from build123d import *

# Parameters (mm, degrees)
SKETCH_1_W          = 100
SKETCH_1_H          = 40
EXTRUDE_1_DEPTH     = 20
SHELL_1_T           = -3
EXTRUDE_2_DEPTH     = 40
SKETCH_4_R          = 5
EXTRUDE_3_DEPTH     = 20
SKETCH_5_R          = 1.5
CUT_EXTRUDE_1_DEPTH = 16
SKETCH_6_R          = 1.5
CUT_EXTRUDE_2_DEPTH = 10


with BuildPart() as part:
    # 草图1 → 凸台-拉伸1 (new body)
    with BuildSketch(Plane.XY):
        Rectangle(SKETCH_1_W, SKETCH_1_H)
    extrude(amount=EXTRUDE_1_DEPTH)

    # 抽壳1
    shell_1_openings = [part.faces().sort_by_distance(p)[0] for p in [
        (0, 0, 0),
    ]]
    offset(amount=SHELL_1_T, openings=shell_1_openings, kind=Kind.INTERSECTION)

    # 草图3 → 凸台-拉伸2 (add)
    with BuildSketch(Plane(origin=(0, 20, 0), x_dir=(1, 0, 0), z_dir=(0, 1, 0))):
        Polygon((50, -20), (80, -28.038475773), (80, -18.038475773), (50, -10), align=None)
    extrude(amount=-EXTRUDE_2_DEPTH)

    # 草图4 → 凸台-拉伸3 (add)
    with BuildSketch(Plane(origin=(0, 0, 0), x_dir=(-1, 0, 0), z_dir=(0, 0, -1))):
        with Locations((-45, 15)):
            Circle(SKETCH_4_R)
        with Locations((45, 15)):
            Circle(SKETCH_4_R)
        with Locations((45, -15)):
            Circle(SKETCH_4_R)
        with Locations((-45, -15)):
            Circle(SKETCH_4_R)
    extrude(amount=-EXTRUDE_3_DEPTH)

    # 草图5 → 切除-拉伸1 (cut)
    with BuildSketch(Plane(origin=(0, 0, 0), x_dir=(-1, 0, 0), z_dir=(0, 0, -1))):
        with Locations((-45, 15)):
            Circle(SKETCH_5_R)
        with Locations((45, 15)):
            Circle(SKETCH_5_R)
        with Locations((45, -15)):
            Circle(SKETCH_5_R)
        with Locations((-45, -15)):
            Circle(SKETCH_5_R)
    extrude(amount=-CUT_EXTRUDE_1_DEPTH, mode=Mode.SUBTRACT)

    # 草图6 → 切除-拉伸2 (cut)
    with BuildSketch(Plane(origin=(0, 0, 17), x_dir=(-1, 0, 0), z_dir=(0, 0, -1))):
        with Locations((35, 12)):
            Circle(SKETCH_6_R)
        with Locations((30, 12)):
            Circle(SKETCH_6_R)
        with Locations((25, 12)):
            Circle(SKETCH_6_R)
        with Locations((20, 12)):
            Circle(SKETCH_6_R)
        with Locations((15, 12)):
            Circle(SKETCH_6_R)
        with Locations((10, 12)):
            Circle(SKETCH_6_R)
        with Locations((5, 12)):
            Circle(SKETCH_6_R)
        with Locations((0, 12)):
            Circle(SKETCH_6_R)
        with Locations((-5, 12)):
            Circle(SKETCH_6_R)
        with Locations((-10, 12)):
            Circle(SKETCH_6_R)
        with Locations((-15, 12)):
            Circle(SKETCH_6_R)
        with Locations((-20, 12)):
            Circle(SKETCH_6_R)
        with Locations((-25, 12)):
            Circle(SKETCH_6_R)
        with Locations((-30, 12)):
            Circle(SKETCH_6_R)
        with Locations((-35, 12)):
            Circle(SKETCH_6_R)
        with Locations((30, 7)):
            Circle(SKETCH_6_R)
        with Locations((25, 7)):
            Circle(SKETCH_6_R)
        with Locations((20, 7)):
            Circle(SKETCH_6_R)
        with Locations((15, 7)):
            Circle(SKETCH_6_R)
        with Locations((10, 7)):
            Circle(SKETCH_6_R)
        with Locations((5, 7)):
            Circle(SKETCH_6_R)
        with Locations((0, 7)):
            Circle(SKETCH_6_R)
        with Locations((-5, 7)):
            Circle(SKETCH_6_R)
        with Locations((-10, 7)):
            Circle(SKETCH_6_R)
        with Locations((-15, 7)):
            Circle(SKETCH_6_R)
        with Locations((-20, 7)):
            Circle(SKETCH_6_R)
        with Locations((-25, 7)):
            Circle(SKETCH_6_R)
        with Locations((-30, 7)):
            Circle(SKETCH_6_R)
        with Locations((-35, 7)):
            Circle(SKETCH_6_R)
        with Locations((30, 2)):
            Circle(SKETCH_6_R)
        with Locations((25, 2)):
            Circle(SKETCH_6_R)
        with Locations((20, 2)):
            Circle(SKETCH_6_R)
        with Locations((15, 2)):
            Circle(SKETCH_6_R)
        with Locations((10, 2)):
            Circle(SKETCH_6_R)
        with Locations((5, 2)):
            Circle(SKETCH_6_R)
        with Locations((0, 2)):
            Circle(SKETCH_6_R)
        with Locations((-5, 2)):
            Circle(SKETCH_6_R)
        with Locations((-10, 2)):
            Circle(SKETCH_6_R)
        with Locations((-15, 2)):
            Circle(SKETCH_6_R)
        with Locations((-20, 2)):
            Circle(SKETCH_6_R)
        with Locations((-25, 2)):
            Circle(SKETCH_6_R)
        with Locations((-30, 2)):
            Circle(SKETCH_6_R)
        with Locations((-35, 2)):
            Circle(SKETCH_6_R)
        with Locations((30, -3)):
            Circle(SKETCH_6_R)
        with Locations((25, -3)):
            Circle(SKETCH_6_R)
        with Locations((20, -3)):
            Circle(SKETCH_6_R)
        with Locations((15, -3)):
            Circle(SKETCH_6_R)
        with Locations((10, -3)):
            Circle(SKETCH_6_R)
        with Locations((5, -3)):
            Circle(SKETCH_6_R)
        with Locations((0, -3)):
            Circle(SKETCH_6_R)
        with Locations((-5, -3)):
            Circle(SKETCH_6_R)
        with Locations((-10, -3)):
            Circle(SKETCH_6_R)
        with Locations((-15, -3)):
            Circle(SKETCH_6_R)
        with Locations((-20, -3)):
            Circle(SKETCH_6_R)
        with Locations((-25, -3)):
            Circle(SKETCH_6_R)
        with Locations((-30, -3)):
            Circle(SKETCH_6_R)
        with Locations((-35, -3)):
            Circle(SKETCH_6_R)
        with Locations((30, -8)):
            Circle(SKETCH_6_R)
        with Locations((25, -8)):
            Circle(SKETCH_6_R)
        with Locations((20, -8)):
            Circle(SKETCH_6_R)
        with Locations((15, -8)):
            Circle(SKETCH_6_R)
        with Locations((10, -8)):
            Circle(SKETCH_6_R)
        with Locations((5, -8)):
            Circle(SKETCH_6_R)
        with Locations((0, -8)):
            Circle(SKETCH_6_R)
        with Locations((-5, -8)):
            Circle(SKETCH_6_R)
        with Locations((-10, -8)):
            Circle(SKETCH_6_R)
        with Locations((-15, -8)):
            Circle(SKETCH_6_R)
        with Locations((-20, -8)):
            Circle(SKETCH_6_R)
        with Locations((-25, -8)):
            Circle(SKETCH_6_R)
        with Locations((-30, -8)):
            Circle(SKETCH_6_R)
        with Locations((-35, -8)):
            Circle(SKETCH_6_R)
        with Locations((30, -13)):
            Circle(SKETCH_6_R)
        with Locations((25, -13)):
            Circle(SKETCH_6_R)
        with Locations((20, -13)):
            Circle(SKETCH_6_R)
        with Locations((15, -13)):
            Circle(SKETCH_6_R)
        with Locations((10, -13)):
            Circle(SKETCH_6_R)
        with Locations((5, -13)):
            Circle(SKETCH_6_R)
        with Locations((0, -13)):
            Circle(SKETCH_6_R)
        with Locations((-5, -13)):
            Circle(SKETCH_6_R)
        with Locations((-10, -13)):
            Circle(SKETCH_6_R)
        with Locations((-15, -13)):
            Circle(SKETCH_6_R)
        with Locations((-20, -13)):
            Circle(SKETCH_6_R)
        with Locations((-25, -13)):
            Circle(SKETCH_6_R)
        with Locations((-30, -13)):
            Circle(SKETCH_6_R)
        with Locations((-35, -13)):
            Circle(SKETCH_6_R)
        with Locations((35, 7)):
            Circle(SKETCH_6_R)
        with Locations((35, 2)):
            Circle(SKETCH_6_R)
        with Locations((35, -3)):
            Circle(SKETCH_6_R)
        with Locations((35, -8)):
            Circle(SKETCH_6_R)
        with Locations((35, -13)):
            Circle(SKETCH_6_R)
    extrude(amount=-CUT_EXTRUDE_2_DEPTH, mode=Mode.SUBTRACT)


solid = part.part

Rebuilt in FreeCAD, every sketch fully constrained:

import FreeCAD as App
import Part
import Sketcher

V = App.Vector
Q = App.Units.Quantity


def faces_at(feature, points):
    """Names of the faces that lie closest to the given points."""
    faces = feature.Shape.Faces
    near = lambda p: min(range(len(faces)), key=lambda i: faces[i].distToShape(Part.Vertex(*p))[0])
    return sorted({f"Face{near(p) + 1}" for p in points})

doc = App.newDocument("Part")
params = doc.addObject("Spreadsheet::Sheet", "Params")
for row, (alias, value) in enumerate([
    ("sketch1_width", "100 mm"),
    ("sketch1_height", "40 mm"),
    ("pad1_length", "20 mm"),
    ("thickness_wall", "3 mm"),
    ("sketch2_height", "10 mm"),
    ("pad2_length", "40 mm"),
    ("sketch3_diameter", "10 mm"),
    ("pad3_length", "20 mm"),
    ("sketch4_diameter", "3 mm"),
    ("pocket1_length", "16 mm"),
    ("sketch5_diameter", "3 mm"),
    ("pocket2_length", "10 mm"),
], start=1):
    params.set(f"A{row}", alias)
    params.set(f"B{row}", "=" + value)
    params.setAlias(f"B{row}", alias)

body = doc.addObject("PartDesign::Body", "Body")

# Sketch on XY plane
sketch1 = body.newObject("Sketcher::SketchObject", "Sketch")
sketch1.AttachmentSupport = (doc.getObject("XY_Plane"), [""])
sketch1.MapMode = "FlatFace"
sketch1.addGeometry(Part.LineSegment(V(-50, 20, 0), V(-50, -20, 0)), False)
sketch1.addGeometry(Part.LineSegment(V(-50, -20, 0), V(50, -20, 0)), False)
sketch1.addGeometry(Part.LineSegment(V(50, -20, 0), V(50, 20, 0)), False)
sketch1.addGeometry(Part.LineSegment(V(50, 20, 0), V(-50, 20, 0)), False)
sketch1.addConstraint(Sketcher.Constraint("Coincident", 0, 2, 1, 1))
sketch1.addConstraint(Sketcher.Constraint("Coincident", 1, 2, 2, 1))
sketch1.addConstraint(Sketcher.Constraint("Coincident", 2, 2, 3, 1))
sketch1.addConstraint(Sketcher.Constraint("Coincident", 3, 2, 0, 1))
sketch1.addConstraint(Sketcher.Constraint("Vertical", 0))
sketch1.addConstraint(Sketcher.Constraint("Horizontal", 1))
sketch1.addConstraint(Sketcher.Constraint("Vertical", 2))
sketch1.addConstraint(Sketcher.Constraint("Horizontal", 3))
sketch1.addConstraint(Sketcher.Constraint("Symmetric", 0, 2, 2, 2, -1, 1))
sketch1.addConstraint(Sketcher.Constraint("DistanceX", 1, 1, 1, 2, Q("100 mm")))
sketch1.addConstraint(Sketcher.Constraint("DistanceY", 0, 2, 0, 1, Q("40 mm")))
sketch1.setExpression("Constraints[9]", "Params.sketch1_width")
sketch1.setExpression("Constraints[10]", "Params.sketch1_height")
pad1 = body.newObject("PartDesign::Pad", "Pad")
pad1.Profile = sketch1
pad1.setExpression("Length", "Params.pad1_length")
doc.recompute()

thickness = body.newObject("PartDesign::Thickness", "Thickness")
thickness.Base = (pad1, faces_at(pad1, [(0, 0, 0)]))
thickness.setExpression("Value", "Params.thickness_wall")
thickness.Reversed = True
thickness.Join = "Intersection"

# Sketch on XZ plane
sketch2 = body.newObject("Sketcher::SketchObject", "Sketch001")
sketch2.AttachmentSupport = (doc.getObject("XZ_Plane"), [""])
sketch2.MapMode = "FlatFace"
sketch2.AttachmentOffset = App.Placement(V(0, 0, -20), App.Rotation())
sketch2.addGeometry(Part.LineSegment(V(50, 20, 0), V(80, 28, 0)), False)
sketch2.addGeometry(Part.LineSegment(V(80, 28, 0), V(80, 18, 0)), False)
sketch2.addGeometry(Part.LineSegment(V(80, 18, 0), V(50, 10, 0)), False)
sketch2.addGeometry(Part.LineSegment(V(50, 10, 0), V(50, 20, 0)), False)
sketch2.addConstraint(Sketcher.Constraint("Coincident", 0, 2, 1, 1))
sketch2.addConstraint(Sketcher.Constraint("Coincident", 1, 2, 2, 1))
sketch2.addConstraint(Sketcher.Constraint("Coincident", 2, 2, 3, 1))
sketch2.addConstraint(Sketcher.Constraint("Coincident", 3, 2, 0, 1))
sketch2.addConstraint(Sketcher.Constraint("Vertical", 1))
sketch2.addConstraint(Sketcher.Constraint("Vertical", 3))
sketch2.addConstraint(Sketcher.Constraint("Parallel", 0, 2))
sketch2.addConstraint(Sketcher.Constraint("DistanceY", 1, 2, 1, 1, Q("10 mm")))
sketch2.addConstraint(Sketcher.Constraint("Angle", 0, Q("15 deg")))
sketch2.addConstraint(Sketcher.Constraint("DistanceX", -1, 1, 0, 2, Q("80 mm")))
sketch2.addConstraint(Sketcher.Constraint("DistanceX", -1, 1, 2, 2, Q("50 mm")))
sketch2.addConstraint(Sketcher.Constraint("DistanceY", -1, 1, 2, 2, Q("10 mm")))
sketch2.setExpression("Constraints[7]", "Params.sketch2_height")
pad2 = body.newObject("PartDesign::Pad", "Pad001")
pad2.Profile = sketch2
pad2.setExpression("Length", "Params.pad2_length")

# Sketch on XY plane
sketch3 = body.newObject("Sketcher::SketchObject", "Sketch002")
sketch3.AttachmentSupport = (doc.getObject("XY_Plane"), [""])
sketch3.MapMode = "FlatFace"
sketch3.addGeometry(Part.Circle(V(45, 15, 0), V(0, 0, 1), 5), False)
sketch3.addGeometry(Part.Circle(V(-45, 15, 0), V(0, 0, 1), 5), False)
sketch3.addGeometry(Part.Circle(V(-45, -15, 0), V(0, 0, 1), 5), False)
sketch3.addGeometry(Part.Circle(V(45, -15, 0), V(0, 0, 1), 5), False)
sketch3.addConstraint(Sketcher.Constraint("Equal", 0, 1))
sketch3.addConstraint(Sketcher.Constraint("Equal", 1, 2))
sketch3.addConstraint(Sketcher.Constraint("Equal", 2, 3))
sketch3.addConstraint(Sketcher.Constraint("Symmetric", 0, 3, 2, 3, -1, 1))
sketch3.addConstraint(Sketcher.Constraint("Symmetric", 1, 3, 3, 3, -1, 1))
sketch3.addConstraint(Sketcher.Constraint("Symmetric", 0, 3, 1, 3, -2))
sketch3.addConstraint(Sketcher.Constraint("Diameter", 0, Q("10 mm")))
sketch3.addConstraint(Sketcher.Constraint("DistanceX", -1, 1, 0, 3, Q("45 mm")))
sketch3.addConstraint(Sketcher.Constraint("DistanceY", -1, 1, 0, 3, Q("15 mm")))
sketch3.setExpression("Constraints[6]", "Params.sketch3_diameter")
pad3 = body.newObject("PartDesign::Pad", "Pad002")
pad3.Profile = sketch3
pad3.setExpression("Length", "Params.pad3_length")

# Sketch on XY plane
sketch4 = body.newObject("Sketcher::SketchObject", "Sketch003")
sketch4.AttachmentSupport = (doc.getObject("XY_Plane"), [""])
sketch4.MapMode = "FlatFace"
sketch4.addGeometry(Part.Circle(V(45, 15, 0), V(0, 0, 1), 1.5), False)
sketch4.addGeometry(Part.Circle(V(-45, 15, 0), V(0, 0, 1), 1.5), False)
sketch4.addGeometry(Part.Circle(V(-45, -15, 0), V(0, 0, 1), 1.5), False)
sketch4.addGeometry(Part.Circle(V(45, -15, 0), V(0, 0, 1), 1.5), False)
sketch4.addConstraint(Sketcher.Constraint("Equal", 0, 1))
sketch4.addConstraint(Sketcher.Constraint("Equal", 1, 2))
sketch4.addConstraint(Sketcher.Constraint("Equal", 2, 3))
sketch4.addConstraint(Sketcher.Constraint("Symmetric", 0, 3, 2, 3, -1, 1))
sketch4.addConstraint(Sketcher.Constraint("Symmetric", 1, 3, 3, 3, -1, 1))
sketch4.addConstraint(Sketcher.Constraint("Symmetric", 0, 3, 1, 3, -2))
sketch4.addConstraint(Sketcher.Constraint("Diameter", 0, Q("3 mm")))
sketch4.addConstraint(Sketcher.Constraint("DistanceX", -1, 1, 0, 3, Q("45 mm")))
sketch4.addConstraint(Sketcher.Constraint("DistanceY", -1, 1, 0, 3, Q("15 mm")))
sketch4.setExpression("Constraints[6]", "Params.sketch4_diameter")
pocket1 = body.newObject("PartDesign::Pocket", "Pocket")
pocket1.Profile = sketch4
pocket1.setExpression("Length", "Params.pocket1_length")
pocket1.Reversed = True

# Sketch on XY plane
sketch5 = body.newObject("Sketcher::SketchObject", "Sketch004")
sketch5.AttachmentSupport = (doc.getObject("XY_Plane"), [""])
sketch5.MapMode = "FlatFace"
sketch5.AttachmentOffset = App.Placement(V(0, 0, 17), App.Rotation())
sketch5.addGeometry(Part.Circle(V(-35, 12, 0), V(0, 0, 1), 1.5), False)
sketch5.addGeometry(Part.Circle(V(-30, 12, 0), V(0, 0, 1), 1.5), False)
sketch5.addGeometry(Part.Circle(V(-25, 12, 0), V(0, 0, 1), 1.5), False)
sketch5.addGeometry(Part.Circle(V(-20, 12, 0), V(0, 0, 1), 1.5), False)
sketch5.addGeometry(Part.Circle(V(-15, 12, 0), V(0, 0, 1), 1.5), False)
sketch5.addGeometry(Part.Circle(V(-10, 12, 0), V(0, 0, 1), 1.5), False)
sketch5.addGeometry(Part.Circle(V(-5, 12, 0), V(0, 0, 1), 1.5), False)
sketch5.addGeometry(Part.Circle(V(0, 12, 0), V(0, 0, 1), 1.5), False)
sketch5.addGeometry(Part.Circle(V(5, 12, 0), V(0, 0, 1), 1.5), False)
sketch5.addGeometry(Part.Circle(V(10, 12, 0), V(0, 0, 1), 1.5), False)
sketch5.addGeometry(Part.Circle(V(15, 12, 0), V(0, 0, 1), 1.5), False)
sketch5.addGeometry(Part.Circle(V(20, 12, 0), V(0, 0, 1), 1.5), False)
sketch5.addGeometry(Part.Circle(V(25, 12, 0), V(0, 0, 1), 1.5), False)
sketch5.addGeometry(Part.Circle(V(30, 12, 0), V(0, 0, 1), 1.5), False)
sketch5.addGeometry(Part.Circle(V(35, 12, 0), V(0, 0, 1), 1.5), False)
sketch5.addGeometry(Part.Circle(V(-30, 7, 0), V(0, 0, 1), 1.5), False)
sketch5.addGeometry(Part.Circle(V(-25, 7, 0), V(0, 0, 1), 1.5), False)
sketch5.addGeometry(Part.Circle(V(-20, 7, 0), V(0, 0, 1), 1.5), False)
sketch5.addGeometry(Part.Circle(V(-15, 7, 0), V(0, 0, 1), 1.5), False)
sketch5.addGeometry(Part.Circle(V(-10, 7, 0), V(0, 0, 1), 1.5), False)
sketch5.addGeometry(Part.Circle(V(-5, 7, 0), V(0, 0, 1), 1.5), False)
sketch5.addGeometry(Part.Circle(V(0, 7, 0), V(0, 0, 1), 1.5), False)
sketch5.addGeometry(Part.Circle(V(5, 7, 0), V(0, 0, 1), 1.5), False)
sketch5.addGeometry(Part.Circle(V(10, 7, 0), V(0, 0, 1), 1.5), False)
sketch5.addGeometry(Part.Circle(V(15, 7, 0), V(0, 0, 1), 1.5), False)
sketch5.addGeometry(Part.Circle(V(20, 7, 0), V(0, 0, 1), 1.5), False)
sketch5.addGeometry(Part.Circle(V(25, 7, 0), V(0, 0, 1), 1.5), False)
sketch5.addGeometry(Part.Circle(V(30, 7, 0), V(0, 0, 1), 1.5), False)
sketch5.addGeometry(Part.Circle(V(35, 7, 0), V(0, 0, 1), 1.5), False)
sketch5.addGeometry(Part.Circle(V(-30, 2, 0), V(0, 0, 1), 1.5), False)
sketch5.addGeometry(Part.Circle(V(-25, 2, 0), V(0, 0, 1), 1.5), False)
sketch5.addGeometry(Part.Circle(V(-20, 2, 0), V(0, 0, 1), 1.5), False)
sketch5.addGeometry(Part.Circle(V(-15, 2, 0), V(0, 0, 1), 1.5), False)
sketch5.addGeometry(Part.Circle(V(-10, 2, 0), V(0, 0, 1), 1.5), False)
sketch5.addGeometry(Part.Circle(V(-5, 2, 0), V(0, 0, 1), 1.5), False)
sketch5.addGeometry(Part.Circle(V(0, 2, 0), V(0, 0, 1), 1.5), False)
sketch5.addGeometry(Part.Circle(V(5, 2, 0), V(0, 0, 1), 1.5), False)
sketch5.addGeometry(Part.Circle(V(10, 2, 0), V(0, 0, 1), 1.5), False)
sketch5.addGeometry(Part.Circle(V(15, 2, 0), V(0, 0, 1), 1.5), False)
sketch5.addGeometry(Part.Circle(V(20, 2, 0), V(0, 0, 1), 1.5), False)
sketch5.addGeometry(Part.Circle(V(25, 2, 0), V(0, 0, 1), 1.5), False)
sketch5.addGeometry(Part.Circle(V(30, 2, 0), V(0, 0, 1), 1.5), False)
sketch5.addGeometry(Part.Circle(V(35, 2, 0), V(0, 0, 1), 1.5), False)
sketch5.addGeometry(Part.Circle(V(-30, -3, 0), V(0, 0, 1), 1.5), False)
sketch5.addGeometry(Part.Circle(V(-25, -3, 0), V(0, 0, 1), 1.5), False)
sketch5.addGeometry(Part.Circle(V(-20, -3, 0), V(0, 0, 1), 1.5), False)
sketch5.addGeometry(Part.Circle(V(-15, -3, 0), V(0, 0, 1), 1.5), False)
sketch5.addGeometry(Part.Circle(V(-10, -3, 0), V(0, 0, 1), 1.5), False)
sketch5.addGeometry(Part.Circle(V(-5, -3, 0), V(0, 0, 1), 1.5), False)
sketch5.addGeometry(Part.Circle(V(0, -3, 0), V(0, 0, 1), 1.5), False)
sketch5.addGeometry(Part.Circle(V(5, -3, 0), V(0, 0, 1), 1.5), False)
sketch5.addGeometry(Part.Circle(V(10, -3, 0), V(0, 0, 1), 1.5), False)
sketch5.addGeometry(Part.Circle(V(15, -3, 0), V(0, 0, 1), 1.5), False)
sketch5.addGeometry(Part.Circle(V(20, -3, 0), V(0, 0, 1), 1.5), False)
sketch5.addGeometry(Part.Circle(V(25, -3, 0), V(0, 0, 1), 1.5), False)
sketch5.addGeometry(Part.Circle(V(30, -3, 0), V(0, 0, 1), 1.5), False)
sketch5.addGeometry(Part.Circle(V(35, -3, 0), V(0, 0, 1), 1.5), False)
sketch5.addGeometry(Part.Circle(V(-30, -8, 0), V(0, 0, 1), 1.5), False)
sketch5.addGeometry(Part.Circle(V(-25, -8, 0), V(0, 0, 1), 1.5), False)
sketch5.addGeometry(Part.Circle(V(-20, -8, 0), V(0, 0, 1), 1.5), False)
sketch5.addGeometry(Part.Circle(V(-15, -8, 0), V(0, 0, 1), 1.5), False)
sketch5.addGeometry(Part.Circle(V(-10, -8, 0), V(0, 0, 1), 1.5), False)
sketch5.addGeometry(Part.Circle(V(-5, -8, 0), V(0, 0, 1), 1.5), False)
sketch5.addGeometry(Part.Circle(V(0, -8, 0), V(0, 0, 1), 1.5), False)
sketch5.addGeometry(Part.Circle(V(5, -8, 0), V(0, 0, 1), 1.5), False)
sketch5.addGeometry(Part.Circle(V(10, -8, 0), V(0, 0, 1), 1.5), False)
sketch5.addGeometry(Part.Circle(V(15, -8, 0), V(0, 0, 1), 1.5), False)
sketch5.addGeometry(Part.Circle(V(20, -8, 0), V(0, 0, 1), 1.5), False)
sketch5.addGeometry(Part.Circle(V(25, -8, 0), V(0, 0, 1), 1.5), False)
sketch5.addGeometry(Part.Circle(V(30, -8, 0), V(0, 0, 1), 1.5), False)
sketch5.addGeometry(Part.Circle(V(35, -8, 0), V(0, 0, 1), 1.5), False)
sketch5.addGeometry(Part.Circle(V(-30, -13, 0), V(0, 0, 1), 1.5), False)
sketch5.addGeometry(Part.Circle(V(-25, -13, 0), V(0, 0, 1), 1.5), False)
sketch5.addGeometry(Part.Circle(V(-20, -13, 0), V(0, 0, 1), 1.5), False)
sketch5.addGeometry(Part.Circle(V(-15, -13, 0), V(0, 0, 1), 1.5), False)
sketch5.addGeometry(Part.Circle(V(-10, -13, 0), V(0, 0, 1), 1.5), False)
sketch5.addGeometry(Part.Circle(V(-5, -13, 0), V(0, 0, 1), 1.5), False)
sketch5.addGeometry(Part.Circle(V(0, -13, 0), V(0, 0, 1), 1.5), False)
sketch5.addGeometry(Part.Circle(V(5, -13, 0), V(0, 0, 1), 1.5), False)
sketch5.addGeometry(Part.Circle(V(10, -13, 0), V(0, 0, 1), 1.5), False)
sketch5.addGeometry(Part.Circle(V(15, -13, 0), V(0, 0, 1), 1.5), False)
sketch5.addGeometry(Part.Circle(V(20, -13, 0), V(0, 0, 1), 1.5), False)
sketch5.addGeometry(Part.Circle(V(25, -13, 0), V(0, 0, 1), 1.5), False)
sketch5.addGeometry(Part.Circle(V(30, -13, 0), V(0, 0, 1), 1.5), False)
sketch5.addGeometry(Part.Circle(V(35, -13, 0), V(0, 0, 1), 1.5), False)
sketch5.addGeometry(Part.Circle(V(-35, 7, 0), V(0, 0, 1), 1.5), False)
sketch5.addGeometry(Part.Circle(V(-35, 2, 0), V(0, 0, 1), 1.5), False)
sketch5.addGeometry(Part.Circle(V(-35, -3, 0), V(0, 0, 1), 1.5), False)
sketch5.addGeometry(Part.Circle(V(-35, -8, 0), V(0, 0, 1), 1.5), False)
sketch5.addGeometry(Part.Circle(V(-35, -13, 0), V(0, 0, 1), 1.5), False)
sketch5.addConstraint(Sketcher.Constraint("Equal", 0, 1))
sketch5.addConstraint(Sketcher.Constraint("Equal", 1, 2))
sketch5.addConstraint(Sketcher.Constraint("Equal", 2, 3))
sketch5.addConstraint(Sketcher.Constraint("Equal", 3, 4))
sketch5.addConstraint(Sketcher.Constraint("Equal", 4, 5))
sketch5.addConstraint(Sketcher.Constraint("Equal", 5, 6))
sketch5.addConstraint(Sketcher.Constraint("Equal", 6, 7))
sketch5.addConstraint(Sketcher.Constraint("Equal", 7, 8))
sketch5.addConstraint(Sketcher.Constraint("Equal", 8, 9))
sketch5.addConstraint(Sketcher.Constraint("Equal", 9, 10))
sketch5.addConstraint(Sketcher.Constraint("Equal", 10, 11))
sketch5.addConstraint(Sketcher.Constraint("Equal", 11, 12))
sketch5.addConstraint(Sketcher.Constraint("Equal", 12, 13))
sketch5.addConstraint(Sketcher.Constraint("Equal", 13, 14))
sketch5.addConstraint(Sketcher.Constraint("Equal", 14, 15))
sketch5.addConstraint(Sketcher.Constraint("Equal", 15, 16))
sketch5.addConstraint(Sketcher.Constraint("Equal", 16, 17))
sketch5.addConstraint(Sketcher.Constraint("Equal", 17, 18))
sketch5.addConstraint(Sketcher.Constraint("Equal", 18, 19))
sketch5.addConstraint(Sketcher.Constraint("Equal", 19, 20))
sketch5.addConstraint(Sketcher.Constraint("Equal", 20, 21))
sketch5.addConstraint(Sketcher.Constraint("Equal", 21, 22))
sketch5.addConstraint(Sketcher.Constraint("Equal", 22, 23))
sketch5.addConstraint(Sketcher.Constraint("Equal", 23, 24))
sketch5.addConstraint(Sketcher.Constraint("Equal", 24, 25))
sketch5.addConstraint(Sketcher.Constraint("Equal", 25, 26))
sketch5.addConstraint(Sketcher.Constraint("Equal", 26, 27))
sketch5.addConstraint(Sketcher.Constraint("Equal", 27, 28))
sketch5.addConstraint(Sketcher.Constraint("Equal", 28, 29))
sketch5.addConstraint(Sketcher.Constraint("Equal", 29, 30))
sketch5.addConstraint(Sketcher.Constraint("Equal", 30, 31))
sketch5.addConstraint(Sketcher.Constraint("Equal", 31, 32))
sketch5.addConstraint(Sketcher.Constraint("Equal", 32, 33))
sketch5.addConstraint(Sketcher.Constraint("Equal", 33, 34))
sketch5.addConstraint(Sketcher.Constraint("Equal", 34, 35))
sketch5.addConstraint(Sketcher.Constraint("Equal", 35, 36))
sketch5.addConstraint(Sketcher.Constraint("Equal", 36, 37))
sketch5.addConstraint(Sketcher.Constraint("Equal", 37, 38))
sketch5.addConstraint(Sketcher.Constraint("Equal", 38, 39))
sketch5.addConstraint(Sketcher.Constraint("Equal", 39, 40))
sketch5.addConstraint(Sketcher.Constraint("Equal", 40, 41))
sketch5.addConstraint(Sketcher.Constraint("Equal", 41, 42))
sketch5.addConstraint(Sketcher.Constraint("Equal", 42, 43))
sketch5.addConstraint(Sketcher.Constraint("Equal", 43, 44))
sketch5.addConstraint(Sketcher.Constraint("Equal", 44, 45))
sketch5.addConstraint(Sketcher.Constraint("Equal", 45, 46))
sketch5.addConstraint(Sketcher.Constraint("Equal", 46, 47))
sketch5.addConstraint(Sketcher.Constraint("Equal", 47, 48))
sketch5.addConstraint(Sketcher.Constraint("Equal", 48, 49))
sketch5.addConstraint(Sketcher.Constraint("Equal", 49, 50))
sketch5.addConstraint(Sketcher.Constraint("Equal", 50, 51))
sketch5.addConstraint(Sketcher.Constraint("Equal", 51, 52))
sketch5.addConstraint(Sketcher.Constraint("Equal", 52, 53))
sketch5.addConstraint(Sketcher.Constraint("Equal", 53, 54))
sketch5.addConstraint(Sketcher.Constraint("Equal", 54, 55))
sketch5.addConstraint(Sketcher.Constraint("Equal", 55, 56))
sketch5.addConstraint(Sketcher.Constraint("Equal", 56, 57))
sketch5.addConstraint(Sketcher.Constraint("Equal", 57, 58))
sketch5.addConstraint(Sketcher.Constraint("Equal", 58, 59))
sketch5.addConstraint(Sketcher.Constraint("Equal", 59, 60))
sketch5.addConstraint(Sketcher.Constraint("Equal", 60, 61))
sketch5.addConstraint(Sketcher.Constraint("Equal", 61, 62))
sketch5.addConstraint(Sketcher.Constraint("Equal", 62, 63))
sketch5.addConstraint(Sketcher.Constraint("Equal", 63, 64))
sketch5.addConstraint(Sketcher.Constraint("Equal", 64, 65))
sketch5.addConstraint(Sketcher.Constraint("Equal", 65, 66))
sketch5.addConstraint(Sketcher.Constraint("Equal", 66, 67))
sketch5.addConstraint(Sketcher.Constraint("Equal", 67, 68))
sketch5.addConstraint(Sketcher.Constraint("Equal", 68, 69))
sketch5.addConstraint(Sketcher.Constraint("Equal", 69, 70))
sketch5.addConstraint(Sketcher.Constraint("Equal", 70, 71))
sketch5.addConstraint(Sketcher.Constraint("Equal", 71, 72))
sketch5.addConstraint(Sketcher.Constraint("Equal", 72, 73))
sketch5.addConstraint(Sketcher.Constraint("Equal", 73, 74))
sketch5.addConstraint(Sketcher.Constraint("Equal", 74, 75))
sketch5.addConstraint(Sketcher.Constraint("Equal", 75, 76))
sketch5.addConstraint(Sketcher.Constraint("Equal", 76, 77))
sketch5.addConstraint(Sketcher.Constraint("Equal", 77, 78))
sketch5.addConstraint(Sketcher.Constraint("Equal", 78, 79))
sketch5.addConstraint(Sketcher.Constraint("Equal", 79, 80))
sketch5.addConstraint(Sketcher.Constraint("Equal", 80, 81))
sketch5.addConstraint(Sketcher.Constraint("Equal", 81, 82))
sketch5.addConstraint(Sketcher.Constraint("Equal", 82, 83))
sketch5.addConstraint(Sketcher.Constraint("Equal", 83, 84))
sketch5.addConstraint(Sketcher.Constraint("Equal", 84, 85))
sketch5.addConstraint(Sketcher.Constraint("Equal", 85, 86))
sketch5.addConstraint(Sketcher.Constraint("Equal", 86, 87))
sketch5.addConstraint(Sketcher.Constraint("Equal", 87, 88))
sketch5.addConstraint(Sketcher.Constraint("Equal", 88, 89))
sketch5.addConstraint(Sketcher.Constraint("Symmetric", 6, 3, 8, 3, -2))
sketch5.addConstraint(Sketcher.Constraint("Symmetric", 5, 3, 9, 3, -2))
sketch5.addConstraint(Sketcher.Constraint("Symmetric", 4, 3, 10, 3, -2))
sketch5.addConstraint(Sketcher.Constraint("Symmetric", 3, 3, 11, 3, -2))
sketch5.addConstraint(Sketcher.Constraint("Symmetric", 2, 3, 12, 3, -2))
sketch5.addConstraint(Sketcher.Constraint("Symmetric", 1, 3, 13, 3, -2))
sketch5.addConstraint(Sketcher.Constraint("Symmetric", 0, 3, 14, 3, -2))
sketch5.addConstraint(Sketcher.Constraint("Symmetric", 20, 3, 22, 3, -2))
sketch5.addConstraint(Sketcher.Constraint("Symmetric", 19, 3, 23, 3, -2))
sketch5.addConstraint(Sketcher.Constraint("Symmetric", 18, 3, 24, 3, -2))
sketch5.addConstraint(Sketcher.Constraint("Symmetric", 17, 3, 25, 3, -2))
sketch5.addConstraint(Sketcher.Constraint("Symmetric", 16, 3, 26, 3, -2))
sketch5.addConstraint(Sketcher.Constraint("Symmetric", 15, 3, 27, 3, -2))
sketch5.addConstraint(Sketcher.Constraint("Symmetric", 34, 3, 36, 3, -2))
sketch5.addConstraint(Sketcher.Constraint("Symmetric", 33, 3, 37, 3, -2))
sketch5.addConstraint(Sketcher.Constraint("Symmetric", 32, 3, 38, 3, -2))
sketch5.addConstraint(Sketcher.Constraint("Symmetric", 31, 3, 39, 3, -2))
sketch5.addConstraint(Sketcher.Constraint("Symmetric", 30, 3, 40, 3, -2))
sketch5.addConstraint(Sketcher.Constraint("Symmetric", 29, 3, 41, 3, -2))
sketch5.addConstraint(Sketcher.Constraint("Symmetric", 48, 3, 50, 3, -2))
sketch5.addConstraint(Sketcher.Constraint("Symmetric", 47, 3, 51, 3, -2))
sketch5.addConstraint(Sketcher.Constraint("Symmetric", 46, 3, 52, 3, -2))
sketch5.addConstraint(Sketcher.Constraint("Symmetric", 45, 3, 53, 3, -2))
sketch5.addConstraint(Sketcher.Constraint("Symmetric", 44, 3, 54, 3, -2))
sketch5.addConstraint(Sketcher.Constraint("Symmetric", 43, 3, 55, 3, -2))
sketch5.addConstraint(Sketcher.Constraint("Symmetric", 62, 3, 64, 3, -2))
sketch5.addConstraint(Sketcher.Constraint("Symmetric", 61, 3, 65, 3, -2))
sketch5.addConstraint(Sketcher.Constraint("Symmetric", 60, 3, 66, 3, -2))
sketch5.addConstraint(Sketcher.Constraint("Symmetric", 59, 3, 67, 3, -2))
sketch5.addConstraint(Sketcher.Constraint("Symmetric", 58, 3, 68, 3, -2))
sketch5.addConstraint(Sketcher.Constraint("Symmetric", 57, 3, 69, 3, -2))
sketch5.addConstraint(Sketcher.Constraint("Symmetric", 76, 3, 78, 3, -2))
sketch5.addConstraint(Sketcher.Constraint("Symmetric", 75, 3, 79, 3, -2))
sketch5.addConstraint(Sketcher.Constraint("Symmetric", 74, 3, 80, 3, -2))
sketch5.addConstraint(Sketcher.Constraint("Symmetric", 73, 3, 81, 3, -2))
sketch5.addConstraint(Sketcher.Constraint("Symmetric", 72, 3, 82, 3, -2))
sketch5.addConstraint(Sketcher.Constraint("Symmetric", 71, 3, 83, 3, -2))
sketch5.addConstraint(Sketcher.Constraint("Symmetric", 28, 3, 85, 3, -2))
sketch5.addConstraint(Sketcher.Constraint("Symmetric", 42, 3, 86, 3, -2))
sketch5.addConstraint(Sketcher.Constraint("Symmetric", 56, 3, 87, 3, -2))
sketch5.addConstraint(Sketcher.Constraint("Symmetric", 70, 3, 88, 3, -2))
sketch5.addConstraint(Sketcher.Constraint("Symmetric", 84, 3, 89, 3, -2))
sketch5.addConstraint(Sketcher.Constraint("PointOnObject", 7, 3, -2))
sketch5.addConstraint(Sketcher.Constraint("PointOnObject", 21, 3, -2))
sketch5.addConstraint(Sketcher.Constraint("PointOnObject", 35, 3, -2))
sketch5.addConstraint(Sketcher.Constraint("PointOnObject", 49, 3, -2))
sketch5.addConstraint(Sketcher.Constraint("PointOnObject", 63, 3, -2))
sketch5.addConstraint(Sketcher.Constraint("PointOnObject", 77, 3, -2))
sketch5.addConstraint(Sketcher.Constraint("Horizontal", 0, 3, 1, 3))
sketch5.addConstraint(Sketcher.Constraint("Horizontal", 1, 3, 2, 3))
sketch5.addConstraint(Sketcher.Constraint("Horizontal", 2, 3, 3, 3))
sketch5.addConstraint(Sketcher.Constraint("Horizontal", 3, 3, 4, 3))
sketch5.addConstraint(Sketcher.Constraint("Horizontal", 4, 3, 5, 3))
sketch5.addConstraint(Sketcher.Constraint("Horizontal", 5, 3, 6, 3))
sketch5.addConstraint(Sketcher.Constraint("Horizontal", 6, 3, 7, 3))
sketch5.addConstraint(Sketcher.Constraint("Horizontal", 15, 3, 16, 3))
sketch5.addConstraint(Sketcher.Constraint("Horizontal", 16, 3, 17, 3))
sketch5.addConstraint(Sketcher.Constraint("Horizontal", 17, 3, 18, 3))
sketch5.addConstraint(Sketcher.Constraint("Horizontal", 18, 3, 19, 3))
sketch5.addConstraint(Sketcher.Constraint("Horizontal", 19, 3, 20, 3))
sketch5.addConstraint(Sketcher.Constraint("Horizontal", 20, 3, 21, 3))
sketch5.addConstraint(Sketcher.Constraint("Horizontal", 27, 3, 28, 3))
sketch5.addConstraint(Sketcher.Constraint("Horizontal", 29, 3, 30, 3))
sketch5.addConstraint(Sketcher.Constraint("Horizontal", 30, 3, 31, 3))
sketch5.addConstraint(Sketcher.Constraint("Horizontal", 31, 3, 32, 3))
sketch5.addConstraint(Sketcher.Constraint("Horizontal", 32, 3, 33, 3))
sketch5.addConstraint(Sketcher.Constraint("Horizontal", 33, 3, 34, 3))
sketch5.addConstraint(Sketcher.Constraint("Horizontal", 34, 3, 35, 3))
sketch5.addConstraint(Sketcher.Constraint("Horizontal", 41, 3, 42, 3))
sketch5.addConstraint(Sketcher.Constraint("Horizontal", 43, 3, 44, 3))
sketch5.addConstraint(Sketcher.Constraint("Horizontal", 44, 3, 45, 3))
sketch5.addConstraint(Sketcher.Constraint("Horizontal", 45, 3, 46, 3))
sketch5.addConstraint(Sketcher.Constraint("Horizontal", 46, 3, 47, 3))
sketch5.addConstraint(Sketcher.Constraint("Horizontal", 47, 3, 48, 3))
sketch5.addConstraint(Sketcher.Constraint("Horizontal", 48, 3, 49, 3))
sketch5.addConstraint(Sketcher.Constraint("Horizontal", 55, 3, 56, 3))
sketch5.addConstraint(Sketcher.Constraint("Horizontal", 57, 3, 58, 3))
sketch5.addConstraint(Sketcher.Constraint("Horizontal", 58, 3, 59, 3))
sketch5.addConstraint(Sketcher.Constraint("Horizontal", 59, 3, 60, 3))
sketch5.addConstraint(Sketcher.Constraint("Horizontal", 60, 3, 61, 3))
sketch5.addConstraint(Sketcher.Constraint("Horizontal", 61, 3, 62, 3))
sketch5.addConstraint(Sketcher.Constraint("Horizontal", 62, 3, 63, 3))
sketch5.addConstraint(Sketcher.Constraint("Horizontal", 69, 3, 70, 3))
sketch5.addConstraint(Sketcher.Constraint("Horizontal", 71, 3, 72, 3))
sketch5.addConstraint(Sketcher.Constraint("Horizontal", 72, 3, 73, 3))
sketch5.addConstraint(Sketcher.Constraint("Horizontal", 73, 3, 74, 3))
sketch5.addConstraint(Sketcher.Constraint("Horizontal", 74, 3, 75, 3))
sketch5.addConstraint(Sketcher.Constraint("Horizontal", 75, 3, 76, 3))
sketch5.addConstraint(Sketcher.Constraint("Horizontal", 76, 3, 77, 3))
sketch5.addConstraint(Sketcher.Constraint("Horizontal", 83, 3, 84, 3))
sketch5.addConstraint(Sketcher.Constraint("Vertical", 1, 3, 15, 3))
sketch5.addConstraint(Sketcher.Constraint("Vertical", 2, 3, 16, 3))
sketch5.addConstraint(Sketcher.Constraint("Vertical", 3, 3, 17, 3))
sketch5.addConstraint(Sketcher.Constraint("Vertical", 4, 3, 18, 3))
sketch5.addConstraint(Sketcher.Constraint("Vertical", 5, 3, 19, 3))
sketch5.addConstraint(Sketcher.Constraint("Vertical", 6, 3, 20, 3))
sketch5.addConstraint(Sketcher.Constraint("Vertical", 14, 3, 28, 3))
sketch5.addConstraint(Sketcher.Constraint("Vertical", 15, 3, 29, 3))
sketch5.addConstraint(Sketcher.Constraint("Vertical", 16, 3, 30, 3))
sketch5.addConstraint(Sketcher.Constraint("Vertical", 17, 3, 31, 3))
sketch5.addConstraint(Sketcher.Constraint("Vertical", 18, 3, 32, 3))
sketch5.addConstraint(Sketcher.Constraint("Vertical", 19, 3, 33, 3))
sketch5.addConstraint(Sketcher.Constraint("Vertical", 20, 3, 34, 3))
sketch5.addConstraint(Sketcher.Constraint("Vertical", 28, 3, 42, 3))
sketch5.addConstraint(Sketcher.Constraint("Vertical", 29, 3, 43, 3))
sketch5.addConstraint(Sketcher.Constraint("Vertical", 30, 3, 44, 3))
sketch5.addConstraint(Sketcher.Constraint("Vertical", 31, 3, 45, 3))
sketch5.addConstraint(Sketcher.Constraint("Vertical", 32, 3, 46, 3))
sketch5.addConstraint(Sketcher.Constraint("Vertical", 33, 3, 47, 3))
sketch5.addConstraint(Sketcher.Constraint("Vertical", 34, 3, 48, 3))
sketch5.addConstraint(Sketcher.Constraint("Vertical", 42, 3, 56, 3))
sketch5.addConstraint(Sketcher.Constraint("Vertical", 43, 3, 57, 3))
sketch5.addConstraint(Sketcher.Constraint("Vertical", 44, 3, 58, 3))
sketch5.addConstraint(Sketcher.Constraint("Vertical", 45, 3, 59, 3))
sketch5.addConstraint(Sketcher.Constraint("Vertical", 46, 3, 60, 3))
sketch5.addConstraint(Sketcher.Constraint("Vertical", 47, 3, 61, 3))
sketch5.addConstraint(Sketcher.Constraint("Vertical", 48, 3, 62, 3))
sketch5.addConstraint(Sketcher.Constraint("Vertical", 56, 3, 70, 3))
sketch5.addConstraint(Sketcher.Constraint("Vertical", 57, 3, 71, 3))
sketch5.addConstraint(Sketcher.Constraint("Vertical", 58, 3, 72, 3))
sketch5.addConstraint(Sketcher.Constraint("Vertical", 59, 3, 73, 3))
sketch5.addConstraint(Sketcher.Constraint("Vertical", 60, 3, 74, 3))
sketch5.addConstraint(Sketcher.Constraint("Vertical", 61, 3, 75, 3))
sketch5.addConstraint(Sketcher.Constraint("Vertical", 62, 3, 76, 3))
sketch5.addConstraint(Sketcher.Constraint("Vertical", 70, 3, 84, 3))
sketch5.addConstraint(Sketcher.Constraint("Diameter", 0, Q("3 mm")))
sketch5.addConstraint(Sketcher.Constraint("DistanceX", 0, 3, -1, 1, Q("35 mm")))
sketch5.addConstraint(Sketcher.Constraint("DistanceY", -1, 1, 0, 3, Q("12 mm")))
sketch5.addConstraint(Sketcher.Constraint("DistanceX", 1, 3, -1, 1, Q("30 mm")))
sketch5.addConstraint(Sketcher.Constraint("DistanceX", 2, 3, -1, 1, Q("25 mm")))
sketch5.addConstraint(Sketcher.Constraint("DistanceX", 3, 3, -1, 1, Q("20 mm")))
sketch5.addConstraint(Sketcher.Constraint("DistanceX", 4, 3, -1, 1, Q("15 mm")))
sketch5.addConstraint(Sketcher.Constraint("DistanceX", 5, 3, -1, 1, Q("10 mm")))
sketch5.addConstraint(Sketcher.Constraint("DistanceX", 6, 3, -1, 1, Q("5 mm")))
sketch5.addConstraint(Sketcher.Constraint("DistanceY", -1, 1, 15, 3, Q("7 mm")))
sketch5.addConstraint(Sketcher.Constraint("DistanceY", -1, 1, 29, 3, Q("2 mm")))
sketch5.addConstraint(Sketcher.Constraint("DistanceY", 43, 3, -1, 1, Q("3 mm")))
sketch5.addConstraint(Sketcher.Constraint("DistanceY", 57, 3, -1, 1, Q("8 mm")))
sketch5.addConstraint(Sketcher.Constraint("DistanceY", 71, 3, -1, 1, Q("13 mm")))
sketch5.setExpression("Constraints[214]", "Params.sketch5_diameter")
pocket2 = body.newObject("PartDesign::Pocket", "Pocket001")
pocket2.Profile = sketch5
pocket2.setExpression("Length", "Params.pocket2_length")
pocket2.Reversed = True

doc.recompute()
